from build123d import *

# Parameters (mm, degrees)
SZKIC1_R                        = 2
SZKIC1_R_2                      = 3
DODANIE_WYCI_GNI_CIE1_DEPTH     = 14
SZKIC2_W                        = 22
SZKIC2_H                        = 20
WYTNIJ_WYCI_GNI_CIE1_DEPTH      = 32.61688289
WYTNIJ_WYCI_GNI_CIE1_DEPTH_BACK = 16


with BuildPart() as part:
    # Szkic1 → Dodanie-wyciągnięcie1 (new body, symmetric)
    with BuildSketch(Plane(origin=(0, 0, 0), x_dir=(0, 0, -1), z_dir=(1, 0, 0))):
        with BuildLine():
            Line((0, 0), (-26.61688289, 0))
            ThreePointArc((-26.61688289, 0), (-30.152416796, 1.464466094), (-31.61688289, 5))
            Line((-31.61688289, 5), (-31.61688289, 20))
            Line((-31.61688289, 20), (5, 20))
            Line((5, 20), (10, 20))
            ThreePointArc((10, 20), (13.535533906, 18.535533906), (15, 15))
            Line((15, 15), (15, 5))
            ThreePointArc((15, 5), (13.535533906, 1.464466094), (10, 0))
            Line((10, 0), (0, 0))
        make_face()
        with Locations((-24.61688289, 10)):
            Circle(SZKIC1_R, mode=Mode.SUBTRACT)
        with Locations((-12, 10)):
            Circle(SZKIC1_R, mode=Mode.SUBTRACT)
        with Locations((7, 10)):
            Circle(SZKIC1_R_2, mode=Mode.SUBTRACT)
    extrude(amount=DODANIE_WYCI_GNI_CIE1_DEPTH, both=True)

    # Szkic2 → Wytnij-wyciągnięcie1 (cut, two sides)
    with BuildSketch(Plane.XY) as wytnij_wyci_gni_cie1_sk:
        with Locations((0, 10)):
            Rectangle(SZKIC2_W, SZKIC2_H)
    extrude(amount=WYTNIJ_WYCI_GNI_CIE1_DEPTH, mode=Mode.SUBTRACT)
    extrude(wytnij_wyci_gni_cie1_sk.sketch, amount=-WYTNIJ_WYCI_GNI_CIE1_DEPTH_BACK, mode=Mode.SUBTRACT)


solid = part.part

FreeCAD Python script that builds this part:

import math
import FreeCAD as App
import Part
import Sketcher

V = App.Vector

doc = App.newDocument("Part")
body = doc.addObject("PartDesign::Body", "Body")
body.AllowCompound = True

# Sketch on YZ plane
sketch1 = doc.addObject("Sketcher::SketchObject", "Sketch")
body.addObject(sketch1)
sketch1.AttachmentSupport = (doc.YZ_Plane, [""])
sketch1.MapMode = "FlatFace"
sketch1.addGeometry(Part.ArcOfCircle(Part.Circle(V(5, 26.6, 0), V(0, 0, 1), 5), math.radians(90), math.radians(180)), False)
sketch1.addGeometry(Part.LineSegment(V(0, 26.6, 0), V(0, -10, 0)), False)
sketch1.addGeometry(Part.ArcOfCircle(Part.Circle(V(5, -10, 0), V(0, 0, 1), 5), math.radians(180), math.radians(270)), False)
sketch1.addGeometry(Part.LineSegment(V(5, -15, 0), V(15, -15, 0)), False)
sketch1.addGeometry(Part.ArcOfCircle(Part.Circle(V(15, -10, 0), V(0, 0, 1), 5), math.radians(-90), math.radians(0)), False)
sketch1.addGeometry(Part.LineSegment(V(20, -10, 0), V(20, 31.6, 0)), False)
sketch1.addGeometry(Part.LineSegment(V(20, 31.6, 0), V(5, 31.6, 0)), False)
sketch1.addGeometry(Part.Circle(V(10, -7, 0), V(0, 0, 1), 3), False)
sketch1.addGeometry(Part.Circle(V(10, 12, 0), V(0, 0, 1), 2), False)
sketch1.addGeometry(Part.Circle(V(10, 24.6, 0), V(0, 0, 1), 2), False)
sketch1.addConstraint(Sketcher.Constraint("Tangent", 0, 2, 1, 1))
sketch1.addConstraint(Sketcher.Constraint("Tangent", 1, 2, 2, 1))
sketch1.addConstraint(Sketcher.Constraint("Tangent", 2, 2, 3, 1))
sketch1.addConstraint(Sketcher.Constraint("Tangent", 3, 2, 4, 1))
sketch1.addConstraint(Sketcher.Constraint("Tangent", 4, 2, 5, 1))
sketch1.addConstraint(Sketcher.Constraint("Coincident", 5, 2, 6, 1))
sketch1.addConstraint(Sketcher.Constraint("Tangent", 6, 2, 0, 1))
sketch1.addConstraint(Sketcher.Constraint("Vertical", 1))
sketch1.addConstraint(Sketcher.Constraint("Horizontal", 3))
sketch1.addConstraint(Sketcher.Constraint("Vertical", 5))
sketch1.addConstraint(Sketcher.Constraint("Horizontal", 6))
sketch1.addConstraint(Sketcher.Constraint("Equal", 0, 2))
sketch1.addConstraint(Sketcher.Constraint("Equal", 2, 4))
sketch1.addConstraint(Sketcher.Constraint("Equal", 8, 9))
sketch1.addConstraint(Sketcher.Constraint("PointOnObject", 0, 2, -2))
sketch1.addConstraint(Sketcher.Constraint("Vertical", 7, 3, 8, 3))
sketch1.addConstraint(Sketcher.Constraint("Vertical", 8, 3, 9, 3))
sketch1.addConstraint(Sketcher.Constraint("Diameter", 7, 6.0))
sketch1.addConstraint(Sketcher.Constraint("Diameter", 8, 4.0))
sketch1.addConstraint(Sketcher.Constraint("Radius", 0, 5.0))
sketch1.addConstraint(Sketcher.Constraint("DistanceX", 3, 1, 3, 2, 10.0))
sketch1.addConstraint(Sketcher.Constraint("DistanceY", 2, 3, -1, 1, 10.0))
sketch1.addConstraint(Sketcher.Constraint("DistanceX", -1, 1, 7, 3, 10.0))
sketch1.addConstraint(Sketcher.Constraint("DistanceY", 7, 3, -1, 1, 7.0))
sketch1.addConstraint(Sketcher.Constraint("DistanceY", -1, 1, 8, 3, 12.0))
sketch1.addConstraint(Sketcher.Constraint("DistanceY", 9, 3, 0, 3, 2.0))
sketch1.addConstraint(Sketcher.Constraint("DistanceY", 1, 2, 1, 1, 36.616883))
pad1 = doc.addObject("PartDesign::Pad", "Pad")
body.addObject(pad1)
pad1.Profile = sketch1
pad1.Length = 28
pad1.Midplane = True

# Sketch on XY plane
sketch2 = doc.addObject("Sketcher::SketchObject", "Sketch001")
body.addObject(sketch2)
sketch2.AttachmentSupport = (doc.XY_Plane, [""])
sketch2.MapMode = "FlatFace"
sketch2.addGeometry(Part.LineSegment(V(-11, 20, 0), V(-11, 0, 0)), False)
sketch2.addGeometry(Part.LineSegment(V(-11, 0, 0), V(11, 0, 0)), False)
sketch2.addGeometry(Part.LineSegment(V(11, 0, 0), V(11, 20, 0)), False)
sketch2.addGeometry(Part.LineSegment(V(11, 20, 0), V(-11, 20, 0)), False)
sketch2.addConstraint(Sketcher.Constraint("Coincident", 0, 2, 1, 1))
sketch2.addConstraint(Sketcher.Constraint("Coincident", 1, 2, 2, 1))
sketch2.addConstraint(Sketcher.Constraint("Coincident", 2, 2, 3, 1))
sketch2.addConstraint(Sketcher.Constraint("Coincident", 3, 2, 0, 1))
sketch2.addConstraint(Sketcher.Constraint("Vertical", 0))
sketch2.addConstraint(Sketcher.Constraint("Horizontal", 1))
sketch2.addConstraint(Sketcher.Constraint("Vertical", 2))
sketch2.addConstraint(Sketcher.Constraint("Horizontal", 3))
sketch2.addConstraint(Sketcher.Constraint("Symmetric", 0, 2, 1, 2, -1, 1))
sketch2.addConstraint(Sketcher.Constraint("DistanceX", 1, 1, 1, 2, 22.0))
sketch2.addConstraint(Sketcher.Constraint("DistanceY", 0, 2, 0, 1, 20.0))
pocket1 = doc.addObject("PartDesign::Pocket", "Pocket")
body.addObject(pocket1)
pocket1.Profile = sketch2
pocket1.Type = "ThroughAll"
pocket1.Midplane = True

doc.recompute()
